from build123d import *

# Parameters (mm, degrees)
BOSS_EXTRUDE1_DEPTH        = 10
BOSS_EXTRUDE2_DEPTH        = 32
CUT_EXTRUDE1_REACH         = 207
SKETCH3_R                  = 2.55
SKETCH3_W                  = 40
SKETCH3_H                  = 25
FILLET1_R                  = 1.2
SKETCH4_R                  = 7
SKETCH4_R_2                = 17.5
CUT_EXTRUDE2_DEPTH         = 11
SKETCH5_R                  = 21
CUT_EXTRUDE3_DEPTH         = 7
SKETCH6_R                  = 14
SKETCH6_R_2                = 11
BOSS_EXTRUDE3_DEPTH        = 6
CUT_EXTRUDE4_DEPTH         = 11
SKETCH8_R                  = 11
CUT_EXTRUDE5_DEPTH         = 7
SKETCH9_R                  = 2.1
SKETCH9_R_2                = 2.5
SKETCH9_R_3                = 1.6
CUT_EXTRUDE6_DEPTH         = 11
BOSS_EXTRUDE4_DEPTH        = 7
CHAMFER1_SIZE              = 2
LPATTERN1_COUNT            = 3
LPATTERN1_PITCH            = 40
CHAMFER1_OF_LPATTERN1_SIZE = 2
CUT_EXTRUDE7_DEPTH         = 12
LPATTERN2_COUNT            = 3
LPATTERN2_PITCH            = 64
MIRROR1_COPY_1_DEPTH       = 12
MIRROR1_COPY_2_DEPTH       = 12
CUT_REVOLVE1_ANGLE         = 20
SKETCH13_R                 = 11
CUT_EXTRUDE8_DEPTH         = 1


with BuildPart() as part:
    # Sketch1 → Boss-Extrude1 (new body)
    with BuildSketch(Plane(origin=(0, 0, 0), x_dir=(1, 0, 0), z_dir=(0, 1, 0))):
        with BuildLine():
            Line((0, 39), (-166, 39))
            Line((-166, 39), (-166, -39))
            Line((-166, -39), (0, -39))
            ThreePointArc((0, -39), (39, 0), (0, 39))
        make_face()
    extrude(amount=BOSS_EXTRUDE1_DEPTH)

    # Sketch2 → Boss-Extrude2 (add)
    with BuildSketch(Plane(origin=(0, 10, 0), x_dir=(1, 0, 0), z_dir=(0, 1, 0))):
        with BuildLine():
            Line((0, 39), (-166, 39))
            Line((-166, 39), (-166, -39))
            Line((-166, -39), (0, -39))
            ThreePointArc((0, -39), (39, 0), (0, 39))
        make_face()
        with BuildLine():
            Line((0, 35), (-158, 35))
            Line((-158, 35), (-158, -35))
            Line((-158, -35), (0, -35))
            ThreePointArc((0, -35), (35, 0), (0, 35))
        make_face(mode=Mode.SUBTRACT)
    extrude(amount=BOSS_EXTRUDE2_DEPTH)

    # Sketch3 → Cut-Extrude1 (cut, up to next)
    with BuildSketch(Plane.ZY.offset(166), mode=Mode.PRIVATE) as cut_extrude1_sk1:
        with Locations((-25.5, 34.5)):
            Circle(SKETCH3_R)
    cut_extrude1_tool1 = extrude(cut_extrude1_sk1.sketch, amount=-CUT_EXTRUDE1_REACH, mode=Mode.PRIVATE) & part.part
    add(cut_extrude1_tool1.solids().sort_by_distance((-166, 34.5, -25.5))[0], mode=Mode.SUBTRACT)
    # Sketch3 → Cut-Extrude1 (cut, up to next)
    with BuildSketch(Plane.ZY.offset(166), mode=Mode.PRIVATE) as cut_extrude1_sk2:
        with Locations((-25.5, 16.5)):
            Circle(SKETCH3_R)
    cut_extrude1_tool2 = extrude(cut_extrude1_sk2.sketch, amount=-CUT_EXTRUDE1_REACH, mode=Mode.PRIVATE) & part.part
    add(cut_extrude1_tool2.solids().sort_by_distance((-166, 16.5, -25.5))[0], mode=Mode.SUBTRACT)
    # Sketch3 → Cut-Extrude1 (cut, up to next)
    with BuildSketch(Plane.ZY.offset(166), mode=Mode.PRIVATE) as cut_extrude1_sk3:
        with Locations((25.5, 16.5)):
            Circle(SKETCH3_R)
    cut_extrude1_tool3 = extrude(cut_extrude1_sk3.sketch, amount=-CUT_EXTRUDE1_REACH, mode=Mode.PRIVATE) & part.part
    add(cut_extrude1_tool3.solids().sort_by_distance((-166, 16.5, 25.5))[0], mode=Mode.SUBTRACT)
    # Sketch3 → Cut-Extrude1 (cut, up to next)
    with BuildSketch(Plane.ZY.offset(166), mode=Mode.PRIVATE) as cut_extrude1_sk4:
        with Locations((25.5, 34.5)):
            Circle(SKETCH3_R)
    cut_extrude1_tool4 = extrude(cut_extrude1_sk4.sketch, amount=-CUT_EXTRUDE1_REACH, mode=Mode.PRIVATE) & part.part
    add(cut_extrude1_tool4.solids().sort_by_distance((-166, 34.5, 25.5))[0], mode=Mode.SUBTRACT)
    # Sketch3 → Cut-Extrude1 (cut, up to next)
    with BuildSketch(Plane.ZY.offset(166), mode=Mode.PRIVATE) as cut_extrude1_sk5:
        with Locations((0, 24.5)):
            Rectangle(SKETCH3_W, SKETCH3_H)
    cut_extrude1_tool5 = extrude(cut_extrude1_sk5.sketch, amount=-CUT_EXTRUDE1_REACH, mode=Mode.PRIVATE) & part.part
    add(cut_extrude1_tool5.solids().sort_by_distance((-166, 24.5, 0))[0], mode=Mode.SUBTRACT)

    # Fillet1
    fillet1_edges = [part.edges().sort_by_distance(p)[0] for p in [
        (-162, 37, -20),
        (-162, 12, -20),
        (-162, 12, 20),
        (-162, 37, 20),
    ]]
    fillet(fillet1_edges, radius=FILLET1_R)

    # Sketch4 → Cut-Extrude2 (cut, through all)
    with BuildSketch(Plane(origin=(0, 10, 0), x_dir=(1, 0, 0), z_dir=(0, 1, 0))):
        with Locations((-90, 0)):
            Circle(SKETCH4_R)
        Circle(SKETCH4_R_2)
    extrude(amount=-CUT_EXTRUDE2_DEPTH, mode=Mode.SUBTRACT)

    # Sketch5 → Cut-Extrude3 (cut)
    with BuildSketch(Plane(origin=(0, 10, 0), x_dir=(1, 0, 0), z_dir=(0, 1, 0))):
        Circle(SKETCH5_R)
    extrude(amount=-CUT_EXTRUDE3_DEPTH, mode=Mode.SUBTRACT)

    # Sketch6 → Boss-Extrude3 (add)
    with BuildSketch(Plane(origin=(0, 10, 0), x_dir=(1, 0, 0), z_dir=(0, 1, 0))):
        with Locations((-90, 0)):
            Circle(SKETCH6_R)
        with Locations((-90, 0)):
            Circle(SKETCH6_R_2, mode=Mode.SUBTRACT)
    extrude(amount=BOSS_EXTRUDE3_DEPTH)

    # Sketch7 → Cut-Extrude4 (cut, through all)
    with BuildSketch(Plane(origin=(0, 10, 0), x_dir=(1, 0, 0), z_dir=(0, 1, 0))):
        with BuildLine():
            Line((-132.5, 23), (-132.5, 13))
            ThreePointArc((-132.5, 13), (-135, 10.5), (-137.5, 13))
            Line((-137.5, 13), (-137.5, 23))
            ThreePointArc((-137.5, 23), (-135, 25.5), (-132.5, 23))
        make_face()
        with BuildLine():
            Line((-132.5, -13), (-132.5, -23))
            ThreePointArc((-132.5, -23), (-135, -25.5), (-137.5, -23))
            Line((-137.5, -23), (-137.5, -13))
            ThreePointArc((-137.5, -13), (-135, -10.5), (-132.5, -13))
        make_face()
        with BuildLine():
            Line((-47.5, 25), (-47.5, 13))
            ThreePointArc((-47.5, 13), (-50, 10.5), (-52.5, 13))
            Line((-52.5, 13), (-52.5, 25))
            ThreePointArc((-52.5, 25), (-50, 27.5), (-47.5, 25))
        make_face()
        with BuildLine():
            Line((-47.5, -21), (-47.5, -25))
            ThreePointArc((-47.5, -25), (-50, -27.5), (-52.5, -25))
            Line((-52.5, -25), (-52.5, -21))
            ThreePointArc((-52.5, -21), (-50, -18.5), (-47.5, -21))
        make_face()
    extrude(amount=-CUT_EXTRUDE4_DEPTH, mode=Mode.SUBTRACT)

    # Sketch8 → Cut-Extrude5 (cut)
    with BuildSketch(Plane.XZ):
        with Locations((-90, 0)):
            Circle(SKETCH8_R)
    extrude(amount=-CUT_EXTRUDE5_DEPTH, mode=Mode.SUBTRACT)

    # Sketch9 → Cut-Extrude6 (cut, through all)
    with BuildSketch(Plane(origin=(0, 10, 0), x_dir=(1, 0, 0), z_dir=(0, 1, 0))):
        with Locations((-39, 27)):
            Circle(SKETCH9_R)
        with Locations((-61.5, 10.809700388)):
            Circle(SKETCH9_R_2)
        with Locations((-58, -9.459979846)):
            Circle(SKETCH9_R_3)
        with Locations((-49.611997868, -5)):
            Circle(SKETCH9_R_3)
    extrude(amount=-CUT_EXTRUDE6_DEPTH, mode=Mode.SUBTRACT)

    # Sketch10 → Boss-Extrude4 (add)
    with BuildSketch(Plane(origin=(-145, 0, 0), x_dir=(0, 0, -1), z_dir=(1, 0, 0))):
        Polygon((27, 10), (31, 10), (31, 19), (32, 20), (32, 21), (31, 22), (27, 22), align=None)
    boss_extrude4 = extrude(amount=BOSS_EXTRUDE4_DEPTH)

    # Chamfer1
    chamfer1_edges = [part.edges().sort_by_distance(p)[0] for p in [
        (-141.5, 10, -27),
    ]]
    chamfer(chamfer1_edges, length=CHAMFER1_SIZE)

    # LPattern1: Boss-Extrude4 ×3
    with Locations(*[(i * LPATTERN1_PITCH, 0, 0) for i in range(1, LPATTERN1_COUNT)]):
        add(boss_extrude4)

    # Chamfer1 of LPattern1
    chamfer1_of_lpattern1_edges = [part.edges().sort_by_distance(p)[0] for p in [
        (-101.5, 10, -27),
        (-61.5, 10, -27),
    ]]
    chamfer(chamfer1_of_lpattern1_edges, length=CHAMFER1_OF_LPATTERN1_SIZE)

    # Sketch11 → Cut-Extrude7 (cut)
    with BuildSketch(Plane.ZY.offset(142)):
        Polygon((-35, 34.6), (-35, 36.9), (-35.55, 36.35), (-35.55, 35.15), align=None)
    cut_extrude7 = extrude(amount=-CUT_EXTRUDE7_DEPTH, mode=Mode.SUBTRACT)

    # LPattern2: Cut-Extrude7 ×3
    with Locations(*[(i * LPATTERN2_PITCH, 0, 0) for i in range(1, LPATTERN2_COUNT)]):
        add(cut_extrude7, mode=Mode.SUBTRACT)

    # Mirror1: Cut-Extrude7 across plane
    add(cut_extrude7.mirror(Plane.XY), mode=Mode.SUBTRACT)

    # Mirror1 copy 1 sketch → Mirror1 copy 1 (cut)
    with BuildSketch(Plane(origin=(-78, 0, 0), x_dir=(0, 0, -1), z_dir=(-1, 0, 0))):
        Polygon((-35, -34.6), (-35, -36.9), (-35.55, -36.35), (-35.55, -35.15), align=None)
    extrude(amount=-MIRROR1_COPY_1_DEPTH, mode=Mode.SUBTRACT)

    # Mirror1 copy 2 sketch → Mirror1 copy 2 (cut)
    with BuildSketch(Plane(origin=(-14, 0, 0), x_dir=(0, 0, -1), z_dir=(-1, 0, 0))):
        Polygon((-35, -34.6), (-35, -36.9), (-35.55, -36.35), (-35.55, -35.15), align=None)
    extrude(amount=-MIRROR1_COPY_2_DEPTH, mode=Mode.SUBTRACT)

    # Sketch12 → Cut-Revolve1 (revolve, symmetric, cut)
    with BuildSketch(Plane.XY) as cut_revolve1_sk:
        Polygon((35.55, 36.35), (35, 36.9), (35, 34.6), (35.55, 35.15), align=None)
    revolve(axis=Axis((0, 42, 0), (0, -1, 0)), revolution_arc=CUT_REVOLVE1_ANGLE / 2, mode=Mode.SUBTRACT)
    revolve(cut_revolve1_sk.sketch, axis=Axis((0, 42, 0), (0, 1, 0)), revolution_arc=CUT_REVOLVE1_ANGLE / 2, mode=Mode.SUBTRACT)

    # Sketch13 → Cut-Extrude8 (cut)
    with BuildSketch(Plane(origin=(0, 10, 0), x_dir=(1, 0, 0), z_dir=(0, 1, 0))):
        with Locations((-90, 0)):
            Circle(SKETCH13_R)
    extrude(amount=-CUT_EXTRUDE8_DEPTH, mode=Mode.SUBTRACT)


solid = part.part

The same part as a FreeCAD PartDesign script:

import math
import FreeCAD as App
import Part
import Sketcher
from FreeCAD import Vector


def edges_at(feature, points):
    """Names of the edges that pass closest to the given points."""
    edges = feature.Shape.Edges
    near = lambda p: min(range(len(edges)), key=lambda i: edges[i].distToShape(Part.Vertex(*p))[0])
    return sorted({f"Edge{near(p) + 1}" for p in points})


def add_polygon(sketch, points):
    """Adds a closed chain of lines whose ends are joined by coincident constraints."""
    first, n = sketch.GeometryCount, len(points)
    for a, b in zip(points, points[1:] + points[:1]):
        sketch.addGeometry(Part.LineSegment(App.Vector(*a, 0), App.Vector(*b, 0)), False)
    for i in range(n):
        sketch.addConstraint(Sketcher.Constraint("Coincident", first + i, 2, first + (i + 1) % n, 1))

doc = App.newDocument("Part")
body = doc.addObject("PartDesign::Body", "Body")

sketch1 = body.newObject("Sketcher::SketchObject", "Sketch")
sketch1.AttachmentSupport = (doc.getObject("XZ_Plane"), [""])
sketch1.MapMode = "FlatFace"
sketch1.addGeometry(Part.LineSegment(Vector(0, -39, 0), Vector(-166, -39, 0)), False)
sketch1.addGeometry(Part.LineSegment(Vector(-166, -39, 0), Vector(-166, 39, 0)), False)
sketch1.addGeometry(Part.LineSegment(Vector(-166, 39, 0), Vector(0, 39, 0)), False)
sketch1.addGeometry(Part.ArcOfCircle(Part.Circle(Vector(0, 0, 0), Vector(0, 0, 1), 39), math.radians(-90), math.radians(90)), False)
sketch1.addConstraint(Sketcher.Constraint("Coincident", 0, 2, 1, 1))
sketch1.addConstraint(Sketcher.Constraint("Coincident", 1, 2, 2, 1))
sketch1.addConstraint(Sketcher.Constraint("Tangent", 2, 2, 3, 2))
sketch1.addConstraint(Sketcher.Constraint("Tangent", 3, 1, 0, 1))
sketch1.addConstraint(Sketcher.Constraint("Horizontal", 0))
sketch1.addConstraint(Sketcher.Constraint("Vertical", 1))
sketch1.addConstraint(Sketcher.Constraint("Horizontal", 2))
sketch1.addConstraint(Sketcher.Constraint("Coincident", 3, 3, -1, 1))
sketch1.addConstraint(Sketcher.Constraint("Radius", 3, 39.0))
sketch1.addConstraint(Sketcher.Constraint("DistanceX", 0, 2, 0, 1, 166.0))
pad1 = body.newObject("PartDesign::Pad", "Pad")
pad1.Profile = sketch1
pad1.Length = 10
pad1.Reversed = True

sketch2 = body.newObject("Sketcher::SketchObject", "Sketch001")
sketch2.AttachmentSupport = (doc.getObject("XZ_Plane"), [""])
sketch2.MapMode = "FlatFace"
sketch2.AttachmentOffset = App.Placement(Vector(0, 0, -10), App.Rotation())
sketch2.addGeometry(Part.LineSegment(Vector(0, -39, 0), Vector(-166, -39, 0)), False)
sketch2.addGeometry(Part.LineSegment(Vector(-166, -39, 0), Vector(-166, 39, 0)), False)
sketch2.addGeometry(Part.LineSegment(Vector(-166, 39, 0), Vector(0, 39, 0)), False)
sketch2.addGeometry(Part.ArcOfCircle(Part.Circle(Vector(0, 0, 0), Vector(0, 0, 1), 39), math.radians(-90), math.radians(90)), False)
sketch2.addGeometry(Part.LineSegment(Vector(-158, -35, 0), Vector(0, -35, 0)), False)
sketch2.addGeometry(Part.ArcOfCircle(Part.Circle(Vector(0, 0, 0), Vector(0, 0, 1), 35), math.radians(-90), math.radians(90)), False)
sketch2.addGeometry(Part.LineSegment(Vector(0, 35, 0), Vector(-158, 35, 0)), False)
sketch2.addGeometry(Part.LineSegment(Vector(-158, 35, 0), Vector(-158, -35, 0)), False)
sketch2.addConstraint(Sketcher.Constraint("Coincident", 0, 2, 1, 1))
sketch2.addConstraint(Sketcher.Constraint("Coincident", 1, 2, 2, 1))
sketch2.addConstraint(Sketcher.Constraint("Tangent", 2, 2, 3, 2))
sketch2.addConstraint(Sketcher.Constraint("Tangent", 3, 1, 0, 1))
sketch2.addConstraint(Sketcher.Constraint("Tangent", 4, 2, 5, 1))
sketch2.addConstraint(Sketcher.Constraint("Tangent", 5, 2, 6, 1))
sketch2.addConstraint(Sketcher.Constraint("Coincident", 6, 2, 7, 1))
sketch2.addConstraint(Sketcher.Constraint("Coincident", 7, 2, 4, 1))
sketch2.addConstraint(Sketcher.Constraint("Horizontal", 0))
sketch2.addConstraint(Sketcher.Constraint("Vertical", 1))
sketch2.addConstraint(Sketcher.Constraint("Horizontal", 2))
sketch2.addConstraint(Sketcher.Constraint("Horizontal", 4))
sketch2.addConstraint(Sketcher.Constraint("Horizontal", 6))
sketch2.addConstraint(Sketcher.Constraint("Vertical", 7))
sketch2.addConstraint(Sketcher.Constraint("Coincident", 3, 3, -1, 1))
sketch2.addConstraint(Sketcher.Constraint("Coincident", 5, 3, -1, 1))
sketch2.addConstraint(Sketcher.Constraint("Radius", 3, 39.0))
sketch2.addConstraint(Sketcher.Constraint("Radius", 5, 35.0))
sketch2.addConstraint(Sketcher.Constraint("DistanceX", 0, 2, 0, 1, 166.0))
sketch2.addConstraint(Sketcher.Constraint("DistanceX", 4, 1, 4, 2, 158.0))
pad2 = body.newObject("PartDesign::Pad", "Pad001")
pad2.Profile = sketch2
pad2.Length = 32
pad2.Reversed = True

sketch3 = body.newObject("Sketcher::SketchObject", "Sketch002")
sketch3.AttachmentSupport = (doc.getObject("YZ_Plane"), [""])
sketch3.MapMode = "FlatFace"
sketch3.AttachmentOffset = App.Placement(Vector(0, 0, -166), App.Rotation())
sketch3.addGeometry(Part.Circle(Vector(34.5, -25.5, 0), Vector(0, 0, 1), 2.55), False)
sketch3.addConstraint(Sketcher.Constraint("Diameter", 0, 5.1))
sketch3.addConstraint(Sketcher.Constraint("DistanceX", -1, 1, 0, 3, 34.5))
sketch3.addConstraint(Sketcher.Constraint("DistanceY", 0, 3, -1, 1, 25.5))
pocket1 = body.newObject("PartDesign::Pocket", "Pocket")
pocket1.Profile = sketch3
pocket1.Type = "UpToFirst"
pocket1.Reversed = True

sketch4 = body.newObject("Sketcher::SketchObject", "Sketch003")
sketch4.AttachmentSupport = (doc.getObject("YZ_Plane"), [""])
sketch4.MapMode = "FlatFace"
sketch4.AttachmentOffset = App.Placement(Vector(0, 0, -166), App.Rotation())
sketch4.addGeometry(Part.Circle(Vector(16.5, -25.5, 0), Vector(0, 0, 1), 2.55), False)
sketch4.addConstraint(Sketcher.Constraint("Diameter", 0, 5.1))
sketch4.addConstraint(Sketcher.Constraint("DistanceX", -1, 1, 0, 3, 16.5))
sketch4.addConstraint(Sketcher.Constraint("DistanceY", 0, 3, -1, 1, 25.5))
pocket2 = body.newObject("PartDesign::Pocket", "Pocket001")
pocket2.Profile = sketch4
pocket2.Type = "UpToFirst"
pocket2.Reversed = True

sketch5 = body.newObject("Sketcher::SketchObject", "Sketch004")
sketch5.AttachmentSupport = (doc.getObject("YZ_Plane"), [""])
sketch5.MapMode = "FlatFace"
sketch5.AttachmentOffset = App.Placement(Vector(0, 0, -166), App.Rotation())
sketch5.addGeometry(Part.Circle(Vector(16.5, 25.5, 0), Vector(0, 0, 1), 2.55), False)
sketch5.addConstraint(Sketcher.Constraint("Diameter", 0, 5.1))
sketch5.addConstraint(Sketcher.Constraint("DistanceX", -1, 1, 0, 3, 16.5))
sketch5.addConstraint(Sketcher.Constraint("DistanceY", -1, 1, 0, 3, 25.5))
pocket3 = body.newObject("PartDesign::Pocket", "Pocket002")
pocket3.Profile = sketch5
pocket3.Type = "UpToFirst"
pocket3.Reversed = True

sketch6 = body.newObject("Sketcher::SketchObject", "Sketch005")
sketch6.AttachmentSupport = (doc.getObject("YZ_Plane"), [""])
sketch6.MapMode = "FlatFace"
sketch6.AttachmentOffset = App.Placement(Vector(0, 0, -166), App.Rotation())
sketch6.addGeometry(Part.Circle(Vector(34.5, 25.5, 0), Vector(0, 0, 1), 2.55), False)
sketch6.addConstraint(Sketcher.Constraint("Diameter", 0, 5.1))
sketch6.addConstraint(Sketcher.Constraint("DistanceX", -1, 1, 0, 3, 34.5))
sketch6.addConstraint(Sketcher.Constraint("DistanceY", -1, 1, 0, 3, 25.5))
pocket4 = body.newObject("PartDesign::Pocket", "Pocket003")
pocket4.Profile = sketch6
pocket4.Type = "UpToFirst"
pocket4.Reversed = True

sketch7 = body.newObject("Sketcher::SketchObject", "Sketch006")
sketch7.AttachmentSupport = (doc.getObject("YZ_Plane"), [""])
sketch7.MapMode = "FlatFace"
sketch7.AttachmentOffset = App.Placement(Vector(0, 0, -166), App.Rotation())
add_polygon(sketch7, [(37, -20), (12, -20), (12, 20), (37, 20)])
sketch7.addConstraint(Sketcher.Constraint("Horizontal", 0))
sketch7.addConstraint(Sketcher.Constraint("Vertical", 1))
sketch7.addConstraint(Sketcher.Constraint("Horizontal", 2))
sketch7.addConstraint(Sketcher.Constraint("Vertical", 3))
sketch7.addConstraint(Sketcher.Constraint("DistanceX", 0, 2, 0, 1, 25.0))
sketch7.addConstraint(Sketcher.Constraint("DistanceY", 1, 1, 1, 2, 40.0))
sketch7.addConstraint(Sketcher.Constraint("DistanceX", -1, 1, 0, 2, 12.0))
sketch7.addConstraint(Sketcher.Constraint("DistanceY", 0, 2, -1, 1, 20.0))
pocket5 = body.newObject("PartDesign::Pocket", "Pocket004")
pocket5.Profile = sketch7
pocket5.Type = "UpToFirst"
pocket5.Reversed = True
doc.recompute()

fillet = body.newObject("PartDesign::Fillet", "Fillet")
fillet.Base = (pocket5, edges_at(pocket5, [
    (-162, 37, -20),
    (-162, 12, -20),
    (-162, 12, 20),
    (-162, 37, 20),
]))
fillet.Radius = 1.2

sketch8 = body.newObject("Sketcher::SketchObject", "Sketch007")
sketch8.AttachmentSupport = (doc.getObject("XZ_Plane"), [""])
sketch8.MapMode = "FlatFace"
sketch8.AttachmentOffset = App.Placement(Vector(0, 0, -10), App.Rotation())
sketch8.addGeometry(Part.Circle(Vector(-90, 0, 0), Vector(0, 0, 1), 7), False)
sketch8.addGeometry(Part.Circle(Vector(0, 0, 0), Vector(0, 0, 1), 17.5), False)
sketch8.addConstraint(Sketcher.Constraint("Coincident", 1, 3, -1, 1))
sketch8.addConstraint(Sketcher.Constraint("PointOnObject", 0, 3, -1))
sketch8.addConstraint(Sketcher.Constraint("Diameter", 0, 14.0))
sketch8.addConstraint(Sketcher.Constraint("Diameter", 1, 35.0))
sketch8.addConstraint(Sketcher.Constraint("DistanceX", 0, 3, -1, 1, 90.0))
pocket6 = body.newObject("PartDesign::Pocket", "Pocket005")
pocket6.Profile = sketch8
pocket6.Type = "ThroughAll"
pocket6.Reversed = True

sketch9 = body.newObject("Sketcher::SketchObject", "Sketch008")
sketch9.AttachmentSupport = (doc.getObject("XZ_Plane"), [""])
sketch9.MapMode = "FlatFace"
sketch9.AttachmentOffset = App.Placement(Vector(0, 0, -10), App.Rotation())
sketch9.addGeometry(Part.Circle(Vector(0, 0, 0), Vector(0, 0, 1), 21), False)
sketch9.addConstraint(Sketcher.Constraint("Coincident", 0, 3, -1, 1))
sketch9.addConstraint(Sketcher.Constraint("Diameter", 0, 42.0))
pocket7 = body.newObject("PartDesign::Pocket", "Pocket006")
pocket7.Profile = sketch9
pocket7.Length = 7
pocket7.Reversed = True

sketch10 = body.newObject("Sketcher::SketchObject", "Sketch009")
sketch10.AttachmentSupport = (doc.getObject("XZ_Plane"), [""])
sketch10.MapMode = "FlatFace"
sketch10.AttachmentOffset = App.Placement(Vector(0, 0, -10), App.Rotation())
sketch10.addGeometry(Part.Circle(Vector(-90, 0, 0), Vector(0, 0, 1), 14), False)
sketch10.addGeometry(Part.Circle(Vector(-90, 0, 0), Vector(0, 0, 1), 11), False)
sketch10.addConstraint(Sketcher.Constraint("Coincident", 1, 3, 0, 3))
sketch10.addConstraint(Sketcher.Constraint("PointOnObject", 0, 3, -1))
sketch10.addConstraint(Sketcher.Constraint("Diameter", 0, 28.0))
sketch10.addConstraint(Sketcher.Constraint("Diameter", 1, 22.0))
sketch10.addConstraint(Sketcher.Constraint("DistanceX", 0, 3, -1, 1, 90.0))
pad3 = body.newObject("PartDesign::Pad", "Pad002")
pad3.Profile = sketch10
pad3.Length = 6
pad3.Reversed = True

sketch11 = body.newObject("Sketcher::SketchObject", "Sketch010")
sketch11.AttachmentSupport = (doc.getObject("XZ_Plane"), [""])
sketch11.MapMode = "FlatFace"
sketch11.AttachmentOffset = App.Placement(Vector(0, 0, -10), App.Rotation())
sketch11.addGeometry(Part.LineSegment(Vector(-132.5, -13, 0), Vector(-132.5, -23, 0)), False)
sketch11.addGeometry(Part.ArcOfCircle(Part.Circle(Vector(-135, -23, 0), Vector(0, 0, 1), 2.5), math.radians(180), math.radians(360)), False)
sketch11.addGeometry(Part.LineSegment(Vector(-137.5, -23, 0), Vector(-137.5, -13, 0)), False)
sketch11.addGeometry(Part.ArcOfCircle(Part.Circle(Vector(-135, -13, 0), Vector(0, 0, 1), 2.5), math.radians(0), math.radians(180)), False)
sketch11.addGeometry(Part.LineSegment(Vector(-132.5, 23, 0), Vector(-132.5, 13, 0)), False)
sketch11.addGeometry(Part.ArcOfCircle(Part.Circle(Vector(-135, 13, 0), Vector(0, 0, 1), 2.5), math.radians(180), math.radians(360)), False)
sketch11.addGeometry(Part.LineSegment(Vector(-137.5, 13, 0), Vector(-137.5, 23, 0)), False)
sketch11.addGeometry(Part.ArcOfCircle(Part.Circle(Vector(-135, 23, 0), Vector(0, 0, 1), 2.5), math.radians(0), math.radians(180)), False)
sketch11.addGeometry(Part.LineSegment(Vector(-47.5, -13, 0), Vector(-47.5, -25, 0)), False)
sketch11.addGeometry(Part.ArcOfCircle(Part.Circle(Vector(-50, -25, 0), Vector(0, 0, 1), 2.5), math.radians(180), math.radians(360)), False)
sketch11.addGeometry(Part.LineSegment(Vector(-52.5, -25, 0), Vector(-52.5, -13, 0)), False)
sketch11.addGeometry(Part.ArcOfCircle(Part.Circle(Vector(-50, -13, 0), Vector(0, 0, 1), 2.5), math.radians(0), math.radians(180)), False)
sketch11.addGeometry(Part.LineSegment(Vector(-47.5, 25, 0), Vector(-47.5, 21, 0)), False)
sketch11.addGeometry(Part.ArcOfCircle(Part.Circle(Vector(-50, 21, 0), Vector(0, 0, 1), 2.5), math.radians(180), math.radians(360)), False)
sketch11.addGeometry(Part.LineSegment(Vector(-52.5, 21, 0), Vector(-52.5, 25, 0)), False)
sketch11.addGeometry(Part.ArcOfCircle(Part.Circle(Vector(-50, 25, 0), Vector(0, 0, 1), 2.5), math.radians(0), math.radians(180)), False)
sketch11.addConstraint(Sketcher.Constraint("Tangent", 0, 2, 1, 2))
sketch11.addConstraint(Sketcher.Constraint("Tangent", 1, 1, 2, 1))
sketch11.addConstraint(Sketcher.Constraint("Tangent", 2, 2, 3, 2))
sketch11.addConstraint(Sketcher.Constraint("Tangent", 3, 1, 0, 1))
sketch11.addConstraint(Sketcher.Constraint("Tangent", 4, 2, 5, 2))
sketch11.addConstraint(Sketcher.Constraint("Tangent", 5, 1, 6, 1))
sketch11.addConstraint(Sketcher.Constraint("Tangent", 6, 2, 7, 2))
sketch11.addConstraint(Sketcher.Constraint("Tangent", 7, 1, 4, 1))
sketch11.addConstraint(Sketcher.Constraint("Tangent", 8, 2, 9, 2))
sketch11.addConstraint(Sketcher.Constraint("Tangent", 9, 1, 10, 1))
sketch11.addConstraint(Sketcher.Constraint("Tangent", 10, 2, 11, 2))
sketch11.addConstraint(Sketcher.Constraint("Tangent", 11, 1, 8, 1))
sketch11.addConstraint(Sketcher.Constraint("Tangent", 12, 2, 13, 2))
sketch11.addConstraint(Sketcher.Constraint("Tangent", 13, 1, 14, 1))
sketch11.addConstraint(Sketcher.Constraint("Tangent", 14, 2, 15, 2))
sketch11.addConstraint(Sketcher.Constraint("Tangent", 15, 1, 12, 1))
sketch11.addConstraint(Sketcher.Constraint("Vertical", 0))
sketch11.addConstraint(Sketcher.Constraint("Vertical", 2))
sketch11.addConstraint(Sketcher.Constraint("Vertical", 4))
sketch11.addConstraint(Sketcher.Constraint("Vertical", 6))
sketch11.addConstraint(Sketcher.Constraint("Vertical", 8))
sketch11.addConstraint(Sketcher.Constraint("Vertical", 10))
sketch11.addConstraint(Sketcher.Constraint("Vertical", 12))
sketch11.addConstraint(Sketcher.Constraint("Vertical", 14))
sketch11.addConstraint(Sketcher.Constraint("Equal", 3, 5))
sketch11.addConstraint(Sketcher.Constraint("Equal", 7, 9))
sketch11.addConstraint(Sketcher.Constraint("Equal", 11, 13))
sketch11.addConstraint(Sketcher.Constraint("Symmetric", 3, 3, 5, 3, -1))
sketch11.addConstraint(Sketcher.Constraint("Symmetric", 9, 3, 15, 3, -1))
sketch11.addConstraint(Sketcher.Constraint("Horizontal", 3, 3, 11, 3))
sketch11.addConstraint(Sketcher.Constraint("Equal", 2, 4))
sketch11.addConstraint(Sketcher.Constraint("Radius", 1, 2.5))
sketch11.addConstraint(Sketcher.Constraint("DistanceY", 0, 2, 0, 1, 10.0))
sketch11.addConstraint(Sketcher.Constraint("DistanceY", 8, 2, 8, 1, 12.0))
sketch11.addConstraint(Sketcher.Constraint("DistanceY", 12, 2, 12, 1, 4.0))
sketch11.addConstraint(Sketcher.Constraint("DistanceX", 1, 3, -1, 1, 135.0))
sketch11.addConstraint(Sketcher.Constraint("DistanceY", 1, 3, -1, 1, 23.0))
sketch11.addConstraint(Sketcher.Constraint("DistanceX", 9, 3, -1, 1, 50.0))
pocket8 = body.newObject("PartDesign::Pocket", "Pocket007")
pocket8.Profile = sketch11
pocket8.Type = "ThroughAll"
pocket8.Reversed = True

sketch12 = body.newObject("Sketcher::SketchObject", "Sketch011")
sketch12.AttachmentSupport = (doc.getObject("XZ_Plane"), [""])
sketch12.MapMode = "FlatFace"
sketch12.addGeometry(Part.Circle(Vector(-90, 0, 0), Vector(0, 0, 1), 11), False)
sketch12.addConstraint(Sketcher.Constraint("PointOnObject", 0, 3, -1))
sketch12.addConstraint(Sketcher.Constraint("Diameter", 0, 22.0))
sketch12.addConstraint(Sketcher.Constraint("DistanceX", 0, 3, -1, 1, 90.0))
pocket9 = body.newObject("PartDesign::Pocket", "Pocket008")
pocket9.Profile = sketch12
pocket9.Length = 7

sketch13 = body.newObject("Sketcher::SketchObject", "Sketch012")
sketch13.AttachmentSupport = (doc.getObject("XZ_Plane"), [""])
sketch13.MapMode = "FlatFace"
sketch13.AttachmentOffset = App.Placement(Vector(0, 0, -10), App.Rotation())
sketch13.addGeometry(Part.Circle(Vector(-39, -27, 0), Vector(0, 0, 1), 2.1), False)
sketch13.addGeometry(Part.Circle(Vector(-61.5, -10.8097, 0), Vector(0, 0, 1), 2.5), False)
sketch13.addGeometry(Part.Circle(Vector(-58, 9.45998, 0), Vector(0, 0, 1), 1.6), False)
sketch13.addGeometry(Part.Circle(Vector(-49.611998, 5, 0), Vector(0, 0, 1), 1.6), False)
sketch13.addConstraint(Sketcher.Constraint("Equal", 2, 3))
sketch13.addConstraint(Sketcher.Constraint("Diameter", 1, 5.0))
sketch13.addConstraint(Sketcher.Constraint("Diameter", 0, 4.2))
sketch13.addConstraint(Sketcher.Constraint("Diameter", 2, 3.2))
sketch13.addConstraint(Sketcher.Constraint("DistanceX", 0, 3, -1, 1, 39.0))
sketch13.addConstraint(Sketcher.Constraint("DistanceY", 0, 3, -1, 1, 27.0))
sketch13.addConstraint(Sketcher.Constraint("DistanceX", 2, 3, -1, 1, 58.0))
sketch13.addConstraint(Sketcher.Constraint("DistanceY", -1, 1, 3, 3, 5.0))
sketch13.addConstraint(Sketcher.Constraint("DistanceX", 1, 3, -1, 1, 61.5))
sketch13.addConstraint(Sketcher.Constraint("DistanceY", 1, 3, -1, 1, 10.8097))
sketch13.addConstraint(Sketcher.Constraint("DistanceY", -1, 1, 2, 3, 9.45998))
sketch13.addConstraint(Sketcher.Constraint("DistanceX", 3, 3, -1, 1, 49.611998))
pocket10 = body.newObject("PartDesign::Pocket", "Pocket009")
pocket10.Profile = sketch13
pocket10.Type = "ThroughAll"
pocket10.Reversed = True

sketch14 = body.newObject("Sketcher::SketchObject", "Sketch013")
sketch14.AttachmentSupport = (doc.getObject("YZ_Plane"), [""])
sketch14.MapMode = "FlatFace"
sketch14.AttachmentOffset = App.Placement(Vector(0, 0, -145), App.Rotation())
add_polygon(sketch14, [(10, -27), (10, -31), (19, -31), (20, -32), (21, -32), (22, -31), (22, -27)])
sketch14.addConstraint(Sketcher.Constraint("Vertical", 0))
sketch14.addConstraint(Sketcher.Constraint("Horizontal", 1))
sketch14.addConstraint(Sketcher.Constraint("Horizontal", 3))
sketch14.addConstraint(Sketcher.Constraint("Vertical", 5))
sketch14.addConstraint(Sketcher.Constraint("Horizontal", 6))
sketch14.addConstraint(Sketcher.Constraint("Perpendicular", 2, 4))
sketch14.addConstraint(Sketcher.Constraint("Horizontal", 1, 2, 4, 2))
sketch14.addConstraint(Sketcher.Constraint("Equal", 2, 4))
sketch14.addConstraint(Sketcher.Constraint("DistanceX", 1, 1, 1, 2, 9.0))
sketch14.addConstraint(Sketcher.Constraint("DistanceX", 3, 1, 3, 2, 1.0))
sketch14.addConstraint(Sketcher.Constraint("DistanceX", 6, 2, 6, 1, 12.0))
sketch14.addConstraint(Sketcher.Constraint("DistanceY", 0, 2, 0, 1, 4.0))
sketch14.addConstraint(Sketcher.Constraint("DistanceX", -1, 1, 0, 2, 10.0))
sketch14.addConstraint(Sketcher.Constraint("DistanceY", 0, 2, -1, 1, 31.0))
pad4 = body.newObject("PartDesign::Pad", "Pad003")
pad4.Profile = sketch14
pad4.Length = 7
doc.recompute()

chamfer = body.newObject("PartDesign::Chamfer", "Chamfer")
chamfer.Base = (pad4, edges_at(pad4, [(-141.5, 10, -27)]))
chamfer.Size = 2
doc.recompute()

linearpattern = body.newObject("PartDesign::LinearPattern", "LinearPattern")
linearpattern.Originals = [pad4]
linearpattern.Direction = (doc.getObject("X_Axis"), [""])
linearpattern.Mode = "offset"
linearpattern.Offset = 40
linearpattern.Occurrences = 3
body.Tip = linearpattern
doc.recompute()

chamfer2 = body.newObject("PartDesign::Chamfer", "Chamfer001")
chamfer2.Base = (linearpattern, edges_at(linearpattern, [(-101.5, 10, -27), (-61.5, 10, -27)]))
chamfer2.Size = 2

sketch15 = body.newObject("Sketcher::SketchObject", "Sketch014")
sketch15.AttachmentSupport = (doc.getObject("YZ_Plane"), [""])
sketch15.MapMode = "FlatFace"
sketch15.AttachmentOffset = App.Placement(Vector(0, 0, -142), App.Rotation())
add_polygon(sketch15, [(34.6, -35), (36.9, -35), (36.35, -35.55), (35.15, -35.55)])
sketch15.addConstraint(Sketcher.Constraint("Horizontal", 0))
sketch15.addConstraint(Sketcher.Constraint("Horizontal", 2))
sketch15.addConstraint(Sketcher.Constraint("Perpendicular", 1, 3))
sketch15.addConstraint(Sketcher.Constraint("Equal", 1, 3))
sketch15.addConstraint(Sketcher.Constraint("DistanceX", 0, 1, 0, 2, 2.3))
sketch15.addConstraint(Sketcher.Constraint("DistanceX", 2, 2, 2, 1, 1.2))
sketch15.addConstraint(Sketcher.Constraint("DistanceY", 0, 2, -1, 1, 35.0))
sketch15.addConstraint(Sketcher.Constraint("DistanceX", -1, 1, 0, 2, 36.9))
pocket11 = body.newObject("PartDesign::Pocket", "Pocket010")
pocket11.Profile = sketch15
pocket11.Length = 12
pocket11.Reversed = True
doc.recompute()

linearpattern2 = body.newObject("PartDesign::LinearPattern", "LinearPattern001")
linearpattern2.Originals = [pocket11]
linearpattern2.Direction = (doc.getObject("X_Axis"), [""])
linearpattern2.Mode = "offset"
linearpattern2.Offset = 64
linearpattern2.Occurrences = 3
body.Tip = linearpattern2
doc.recompute()

mirrored = body.newObject("PartDesign::Mirrored", "Mirrored")
mirrored.Originals = [pocket11]
mirrored.MirrorPlane = (doc.getObject("XY_Plane"), [""])
body.Tip = mirrored

sketch16 = body.newObject("Sketcher::SketchObject", "Sketch015")
sketch16.AttachmentSupport = (doc.getObject("YZ_Plane"), [""])
sketch16.MapMode = "FlatFace"
sketch16.AttachmentOffset = App.Placement(Vector(0, 0, -78), App.Rotation())
add_polygon(sketch16, [(36.9, 35), (34.6, 35), (35.15, 35.55), (36.35, 35.55)])
sketch16.addConstraint(Sketcher.Constraint("Horizontal", 0))
sketch16.addConstraint(Sketcher.Constraint("Horizontal", 2))
sketch16.addConstraint(Sketcher.Constraint("Perpendicular", 1, 3))
sketch16.addConstraint(Sketcher.Constraint("Equal", 1, 3))
sketch16.addConstraint(Sketcher.Constraint("DistanceX", 0, 2, 0, 1, 2.3))
sketch16.addConstraint(Sketcher.Constraint("DistanceX", 2, 1, 2, 2, 1.2))
sketch16.addConstraint(Sketcher.Constraint("DistanceY", -1, 1, 0, 2, 35.0))
sketch16.addConstraint(Sketcher.Constraint("DistanceX", -1, 1, 0, 2, 34.6))
pocket12 = body.newObject("PartDesign::Pocket", "Pocket011")
pocket12.Profile = sketch16
pocket12.Length = 12
pocket12.Reversed = True

sketch17 = body.newObject("Sketcher::SketchObject", "Sketch016")
sketch17.AttachmentSupport = (doc.getObject("YZ_Plane"), [""])
sketch17.MapMode = "FlatFace"
sketch17.AttachmentOffset = App.Placement(Vector(0, 0, -14), App.Rotation())
add_polygon(sketch17, [(36.9, 35), (34.6, 35), (35.15, 35.55), (36.35, 35.55)])
sketch17.addConstraint(Sketcher.Constraint("Horizontal", 0))
sketch17.addConstraint(Sketcher.Constraint("Horizontal", 2))
sketch17.addConstraint(Sketcher.Constraint("Perpendicular", 1, 3))
sketch17.addConstraint(Sketcher.Constraint("Equal", 1, 3))
sketch17.addConstraint(Sketcher.Constraint("DistanceX", 0, 2, 0, 1, 2.3))
sketch17.addConstraint(Sketcher.Constraint("DistanceX", 2, 1, 2, 2, 1.2))
sketch17.addConstraint(Sketcher.Constraint("DistanceY", -1, 1, 0, 2, 35.0))
sketch17.addConstraint(Sketcher.Constraint("DistanceX", -1, 1, 0, 2, 34.6))
pocket13 = body.newObject("PartDesign::Pocket", "Pocket012")
pocket13.Profile = sketch17
pocket13.Length = 12
pocket13.Reversed = True

sketch18 = body.newObject("Sketcher::SketchObject", "Sketch017")
sketch18.AttachmentSupport = (doc.getObject("XY_Plane"), [""])
sketch18.MapMode = "FlatFace"
add_polygon(sketch18, [(35.55, 36.35), (35, 36.9), (35, 34.6), (35.55, 35.15)])
sketch18.addConstraint(Sketcher.Constraint("Vertical", 1))
sketch18.addConstraint(Sketcher.Constraint("Vertical", 3))
sketch18.addConstraint(Sketcher.Constraint("Perpendicular", 0, 2))
sketch18.addConstraint(Sketcher.Constraint("Equal", 0, 2))
sketch18.addConstraint(Sketcher.Constraint("DistanceY", 1, 2, 1, 1, 2.3))
sketch18.addConstraint(Sketcher.Constraint("DistanceY", 3, 1, 3, 2, 1.2))
sketch18.addConstraint(Sketcher.Constraint("DistanceX", -1, 1, 0, 2, 35.0))
sketch18.addConstraint(Sketcher.Constraint("DistanceY", -1, 1, 0, 2, 36.9))
groove = body.newObject("PartDesign::Groove", "Groove")
groove.Profile = sketch18
groove.ReferenceAxis = (sketch18, ["V_Axis"])
groove.Angle = 10
groove.Reversed = True

sketch19 = body.newObject("Sketcher::SketchObject", "Sketch018")
sketch19.AttachmentSupport = (doc.getObject("XY_Plane"), [""])
sketch19.MapMode = "FlatFace"
add_polygon(sketch19, [(35.55, 36.35), (35, 36.9), (35, 34.6), (35.55, 35.15)])
sketch19.addConstraint(Sketcher.Constraint("Vertical", 1))
sketch19.addConstraint(Sketcher.Constraint("Vertical", 3))
sketch19.addConstraint(Sketcher.Constraint("Perpendicular", 0, 2))
sketch19.addConstraint(Sketcher.Constraint("Equal", 0, 2))
sketch19.addConstraint(Sketcher.Constraint("DistanceY", 1, 2, 1, 1, 2.3))
sketch19.addConstraint(Sketcher.Constraint("DistanceY", 3, 1, 3, 2, 1.2))
sketch19.addConstraint(Sketcher.Constraint("DistanceX", -1, 1, 0, 2, 35.0))
sketch19.addConstraint(Sketcher.Constraint("DistanceY", -1, 1, 0, 2, 36.9))
groove2 = body.newObject("PartDesign::Groove", "Groove001")
groove2.Profile = sketch19
groove2.ReferenceAxis = (sketch19, ["V_Axis"])
groove2.Angle = 10

sketch20 = body.newObject("Sketcher::SketchObject", "Sketch019")
sketch20.AttachmentSupport = (doc.getObject("XZ_Plane"), [""])
sketch20.MapMode = "FlatFace"
sketch20.AttachmentOffset = App.Placement(Vector(0, 0, -10), App.Rotation())
sketch20.addGeometry(Part.Circle(Vector(-90, 0, 0), Vector(0, 0, 1), 11), False)
sketch20.addConstraint(Sketcher.Constraint("PointOnObject", 0, 3, -1))
sketch20.addConstraint(Sketcher.Constraint("Diameter", 0, 22.0))
sketch20.addConstraint(Sketcher.Constraint("DistanceX", 0, 3, -1, 1, 90.0))
pocket14 = body.newObject("PartDesign::Pocket", "Pocket013")
pocket14.Profile = sketch20
pocket14.Length = 1
pocket14.Reversed = True

doc.recompute()
